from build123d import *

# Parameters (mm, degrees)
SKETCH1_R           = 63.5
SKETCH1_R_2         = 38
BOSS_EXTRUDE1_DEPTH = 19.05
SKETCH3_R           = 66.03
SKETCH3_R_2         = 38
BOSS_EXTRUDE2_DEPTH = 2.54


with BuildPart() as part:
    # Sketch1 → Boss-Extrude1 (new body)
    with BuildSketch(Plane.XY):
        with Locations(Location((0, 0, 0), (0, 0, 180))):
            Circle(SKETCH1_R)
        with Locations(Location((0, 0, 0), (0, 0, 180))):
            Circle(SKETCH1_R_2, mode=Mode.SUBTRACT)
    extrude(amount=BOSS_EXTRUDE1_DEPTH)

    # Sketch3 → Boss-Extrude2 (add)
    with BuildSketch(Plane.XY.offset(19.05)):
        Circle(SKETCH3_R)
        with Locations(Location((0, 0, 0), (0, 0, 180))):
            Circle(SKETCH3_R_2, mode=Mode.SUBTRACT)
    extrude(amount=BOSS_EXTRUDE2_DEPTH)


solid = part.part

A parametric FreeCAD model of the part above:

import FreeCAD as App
import Part
import Sketcher
Q = App.Units.Quantity

doc = App.newDocument("Part")
body = doc.addObject("PartDesign::Body", "Body")

sketch1 = body.newObject("Sketcher::SketchObject", "Sketch")
sketch1.AttachmentSupport = (doc.getObject("XY_Plane"), [""])
sketch1.MapMode = "FlatFace"
sketch1.addGeometry([
    Part.Circle(App.Vector(0, 0, 0), App.Vector(0, 0, 1), 64),
    Part.Circle(App.Vector(0, 0, 0), App.Vector(0, 0, 1), 38),
], False)
sketch1.addConstraint([
    Sketcher.Constraint("Coincident", 0, 3, -1, 1),
    Sketcher.Constraint("Coincident", 1, 3, -1, 1),
    Sketcher.Constraint("Diameter", 0, Q("5 in")),
    Sketcher.Constraint("Diameter", 1, 76.0),
])
pad1 = body.newObject("PartDesign::Pad", "Pad")
pad1.Profile = sketch1
pad1.Length = Q("0.75 in")

sketch2 = body.newObject("Sketcher::SketchObject", "Sketch001")
sketch2.AttachmentSupport = (doc.getObject("XY_Plane"), [""])
sketch2.MapMode = "FlatFace"
sketch2.AttachmentOffset = App.Placement(App.Vector(0, 0, 0.75 * 25.4), App.Rotation())
sketch2.addGeometry([
    Part.Circle(App.Vector(0, 0, 0), App.Vector(0, 0, 1), 66),
    Part.Circle(App.Vector(0, 0, 0), App.Vector(0, 0, 1), 38),
], False)
sketch2.addConstraint([
    Sketcher.Constraint("Coincident", 0, 3, -1, 1),
    Sketcher.Constraint("Coincident", 1, 3, -1, 1),
    Sketcher.Constraint("Diameter", 0, 132.06),
    Sketcher.Constraint("Diameter", 1, 76.0),
])
pad2 = body.newObject("PartDesign::Pad", "Pad001")
pad2.Profile = sketch2
pad2.Length = Q("0.1 in")

doc.recompute()
